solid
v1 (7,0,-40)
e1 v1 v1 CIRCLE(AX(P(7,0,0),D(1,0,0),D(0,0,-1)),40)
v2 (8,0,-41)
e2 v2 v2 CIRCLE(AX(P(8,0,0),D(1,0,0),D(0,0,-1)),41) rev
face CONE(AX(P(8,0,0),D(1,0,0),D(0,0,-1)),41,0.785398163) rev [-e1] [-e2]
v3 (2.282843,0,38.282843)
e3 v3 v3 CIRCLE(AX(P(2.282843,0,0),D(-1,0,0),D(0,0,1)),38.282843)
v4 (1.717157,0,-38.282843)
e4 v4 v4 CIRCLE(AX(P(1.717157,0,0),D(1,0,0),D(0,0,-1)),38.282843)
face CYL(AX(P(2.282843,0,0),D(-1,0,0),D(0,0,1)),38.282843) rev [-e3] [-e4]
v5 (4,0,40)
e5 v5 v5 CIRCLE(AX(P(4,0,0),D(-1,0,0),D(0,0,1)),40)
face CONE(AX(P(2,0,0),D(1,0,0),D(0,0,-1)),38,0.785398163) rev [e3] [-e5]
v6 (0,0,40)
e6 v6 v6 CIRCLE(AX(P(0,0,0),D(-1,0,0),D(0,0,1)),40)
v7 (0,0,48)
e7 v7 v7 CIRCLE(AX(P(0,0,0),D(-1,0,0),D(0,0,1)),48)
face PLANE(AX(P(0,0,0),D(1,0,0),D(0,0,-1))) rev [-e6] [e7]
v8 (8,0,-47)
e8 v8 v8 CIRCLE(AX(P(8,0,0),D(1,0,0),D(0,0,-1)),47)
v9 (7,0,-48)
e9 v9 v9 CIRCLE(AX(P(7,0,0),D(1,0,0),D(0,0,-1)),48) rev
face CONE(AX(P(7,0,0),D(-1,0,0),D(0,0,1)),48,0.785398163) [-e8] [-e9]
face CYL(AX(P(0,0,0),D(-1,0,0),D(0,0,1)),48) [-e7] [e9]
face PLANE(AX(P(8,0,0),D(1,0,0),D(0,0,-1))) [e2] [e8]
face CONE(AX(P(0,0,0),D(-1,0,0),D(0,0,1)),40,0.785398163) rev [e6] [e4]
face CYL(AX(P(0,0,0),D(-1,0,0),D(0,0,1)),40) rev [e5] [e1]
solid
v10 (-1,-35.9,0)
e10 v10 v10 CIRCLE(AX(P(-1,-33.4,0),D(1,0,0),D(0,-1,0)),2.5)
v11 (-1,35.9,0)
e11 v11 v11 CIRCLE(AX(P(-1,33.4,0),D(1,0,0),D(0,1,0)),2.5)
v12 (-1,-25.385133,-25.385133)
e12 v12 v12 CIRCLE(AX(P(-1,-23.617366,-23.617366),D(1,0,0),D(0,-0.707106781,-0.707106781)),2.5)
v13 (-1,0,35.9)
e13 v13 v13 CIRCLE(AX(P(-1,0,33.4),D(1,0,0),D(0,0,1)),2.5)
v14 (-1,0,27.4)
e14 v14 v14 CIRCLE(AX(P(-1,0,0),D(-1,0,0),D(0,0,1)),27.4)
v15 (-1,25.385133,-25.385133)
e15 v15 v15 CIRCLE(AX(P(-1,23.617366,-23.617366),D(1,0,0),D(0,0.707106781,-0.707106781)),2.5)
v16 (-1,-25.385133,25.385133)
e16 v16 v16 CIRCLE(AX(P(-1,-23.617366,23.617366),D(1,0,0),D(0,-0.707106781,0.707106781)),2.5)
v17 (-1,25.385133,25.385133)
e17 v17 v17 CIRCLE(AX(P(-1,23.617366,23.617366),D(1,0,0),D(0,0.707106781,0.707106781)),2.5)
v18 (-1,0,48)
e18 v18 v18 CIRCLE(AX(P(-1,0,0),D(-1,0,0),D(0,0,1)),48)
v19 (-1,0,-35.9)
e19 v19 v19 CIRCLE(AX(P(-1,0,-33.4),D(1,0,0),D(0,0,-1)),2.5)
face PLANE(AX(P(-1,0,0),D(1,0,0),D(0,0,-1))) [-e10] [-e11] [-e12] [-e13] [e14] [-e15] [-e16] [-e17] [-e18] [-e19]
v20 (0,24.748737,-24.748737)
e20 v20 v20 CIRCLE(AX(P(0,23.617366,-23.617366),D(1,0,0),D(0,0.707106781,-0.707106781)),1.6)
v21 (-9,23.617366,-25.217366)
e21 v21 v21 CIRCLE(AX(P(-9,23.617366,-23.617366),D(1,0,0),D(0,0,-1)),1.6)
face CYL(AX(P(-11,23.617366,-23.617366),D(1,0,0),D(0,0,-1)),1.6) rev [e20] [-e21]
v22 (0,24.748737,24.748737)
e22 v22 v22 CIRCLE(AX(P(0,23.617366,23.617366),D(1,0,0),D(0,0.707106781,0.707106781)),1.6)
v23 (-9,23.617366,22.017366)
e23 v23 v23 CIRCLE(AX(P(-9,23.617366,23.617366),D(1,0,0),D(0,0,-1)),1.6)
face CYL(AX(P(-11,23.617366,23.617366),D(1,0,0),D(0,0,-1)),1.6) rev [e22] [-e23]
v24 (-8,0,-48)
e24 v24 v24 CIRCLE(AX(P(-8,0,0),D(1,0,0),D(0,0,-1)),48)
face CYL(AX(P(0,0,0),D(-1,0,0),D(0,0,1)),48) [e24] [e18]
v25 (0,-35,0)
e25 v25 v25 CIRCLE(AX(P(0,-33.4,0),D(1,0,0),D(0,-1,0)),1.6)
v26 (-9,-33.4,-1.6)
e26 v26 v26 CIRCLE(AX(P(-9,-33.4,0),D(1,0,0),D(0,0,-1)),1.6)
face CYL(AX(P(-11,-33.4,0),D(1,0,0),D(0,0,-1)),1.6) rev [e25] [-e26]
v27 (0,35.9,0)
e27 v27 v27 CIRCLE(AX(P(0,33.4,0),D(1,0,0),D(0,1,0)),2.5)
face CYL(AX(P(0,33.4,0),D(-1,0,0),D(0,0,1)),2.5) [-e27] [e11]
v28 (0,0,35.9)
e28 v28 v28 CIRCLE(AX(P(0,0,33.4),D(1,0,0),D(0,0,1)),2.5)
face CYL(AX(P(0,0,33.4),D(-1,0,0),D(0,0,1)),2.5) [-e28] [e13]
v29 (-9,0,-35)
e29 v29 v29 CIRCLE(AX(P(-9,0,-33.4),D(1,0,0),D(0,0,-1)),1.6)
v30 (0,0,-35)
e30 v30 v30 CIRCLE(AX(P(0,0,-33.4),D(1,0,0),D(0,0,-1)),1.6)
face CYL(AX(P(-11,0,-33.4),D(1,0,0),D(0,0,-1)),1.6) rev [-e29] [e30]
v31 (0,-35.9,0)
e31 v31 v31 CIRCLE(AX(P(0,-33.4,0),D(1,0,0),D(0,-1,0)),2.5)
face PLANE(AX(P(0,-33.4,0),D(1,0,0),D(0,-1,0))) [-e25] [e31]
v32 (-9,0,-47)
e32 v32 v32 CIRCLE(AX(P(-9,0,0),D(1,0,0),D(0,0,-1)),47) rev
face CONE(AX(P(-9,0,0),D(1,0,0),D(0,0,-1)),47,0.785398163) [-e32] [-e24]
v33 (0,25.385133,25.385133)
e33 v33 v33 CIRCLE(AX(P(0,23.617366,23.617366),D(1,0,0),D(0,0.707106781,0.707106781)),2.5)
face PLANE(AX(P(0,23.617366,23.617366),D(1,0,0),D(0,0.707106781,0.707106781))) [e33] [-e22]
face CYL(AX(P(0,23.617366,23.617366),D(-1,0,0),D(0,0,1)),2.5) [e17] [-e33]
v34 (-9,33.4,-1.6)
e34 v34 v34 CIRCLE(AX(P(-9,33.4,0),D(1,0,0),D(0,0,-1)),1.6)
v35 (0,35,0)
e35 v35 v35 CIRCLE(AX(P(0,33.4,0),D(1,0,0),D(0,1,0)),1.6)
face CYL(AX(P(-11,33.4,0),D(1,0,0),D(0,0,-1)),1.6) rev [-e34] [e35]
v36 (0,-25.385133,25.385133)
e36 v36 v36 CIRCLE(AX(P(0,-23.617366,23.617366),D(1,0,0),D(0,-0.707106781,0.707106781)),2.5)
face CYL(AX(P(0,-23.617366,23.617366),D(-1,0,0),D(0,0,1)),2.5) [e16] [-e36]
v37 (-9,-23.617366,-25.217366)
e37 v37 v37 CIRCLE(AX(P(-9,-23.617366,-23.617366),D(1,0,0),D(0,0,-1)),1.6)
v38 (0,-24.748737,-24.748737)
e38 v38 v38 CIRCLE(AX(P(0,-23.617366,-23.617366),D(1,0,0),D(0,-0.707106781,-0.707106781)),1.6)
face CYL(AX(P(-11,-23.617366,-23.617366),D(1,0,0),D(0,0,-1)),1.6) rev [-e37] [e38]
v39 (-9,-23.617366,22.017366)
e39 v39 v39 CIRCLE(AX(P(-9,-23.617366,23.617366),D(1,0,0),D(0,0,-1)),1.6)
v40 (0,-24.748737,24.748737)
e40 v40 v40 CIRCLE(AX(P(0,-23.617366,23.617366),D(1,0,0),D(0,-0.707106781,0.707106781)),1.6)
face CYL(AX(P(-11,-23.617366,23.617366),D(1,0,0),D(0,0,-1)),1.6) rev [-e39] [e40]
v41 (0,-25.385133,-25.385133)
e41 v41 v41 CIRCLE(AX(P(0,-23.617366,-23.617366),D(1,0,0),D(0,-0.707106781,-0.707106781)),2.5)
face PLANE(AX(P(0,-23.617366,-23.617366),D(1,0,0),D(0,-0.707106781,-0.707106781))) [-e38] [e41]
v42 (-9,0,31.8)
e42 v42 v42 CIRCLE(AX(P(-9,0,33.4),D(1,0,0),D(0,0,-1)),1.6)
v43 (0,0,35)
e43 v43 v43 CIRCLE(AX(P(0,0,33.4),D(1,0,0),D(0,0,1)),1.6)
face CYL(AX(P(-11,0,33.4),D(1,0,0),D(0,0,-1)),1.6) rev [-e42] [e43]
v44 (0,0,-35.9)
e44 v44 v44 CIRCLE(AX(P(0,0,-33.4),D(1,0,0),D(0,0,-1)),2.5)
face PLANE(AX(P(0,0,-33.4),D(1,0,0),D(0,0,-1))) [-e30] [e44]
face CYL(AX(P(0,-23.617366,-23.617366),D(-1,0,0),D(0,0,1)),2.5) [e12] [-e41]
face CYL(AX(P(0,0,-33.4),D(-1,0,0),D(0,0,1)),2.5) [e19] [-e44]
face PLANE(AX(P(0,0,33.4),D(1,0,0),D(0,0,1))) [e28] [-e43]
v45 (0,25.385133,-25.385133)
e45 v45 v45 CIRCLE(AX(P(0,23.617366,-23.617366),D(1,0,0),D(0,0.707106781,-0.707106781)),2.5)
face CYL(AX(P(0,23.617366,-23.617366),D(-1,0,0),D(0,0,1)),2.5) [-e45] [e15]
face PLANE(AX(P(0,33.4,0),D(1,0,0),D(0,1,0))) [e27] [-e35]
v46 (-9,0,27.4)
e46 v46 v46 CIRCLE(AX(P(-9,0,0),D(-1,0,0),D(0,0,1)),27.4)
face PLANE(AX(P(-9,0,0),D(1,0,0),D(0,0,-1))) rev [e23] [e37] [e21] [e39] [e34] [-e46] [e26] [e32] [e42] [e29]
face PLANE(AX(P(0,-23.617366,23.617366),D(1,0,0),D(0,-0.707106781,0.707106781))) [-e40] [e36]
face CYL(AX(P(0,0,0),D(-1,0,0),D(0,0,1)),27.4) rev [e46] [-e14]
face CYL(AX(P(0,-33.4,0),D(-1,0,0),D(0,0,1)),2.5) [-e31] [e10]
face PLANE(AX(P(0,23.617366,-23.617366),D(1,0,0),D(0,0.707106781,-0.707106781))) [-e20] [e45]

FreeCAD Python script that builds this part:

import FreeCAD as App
import Part
import Sketcher
from FreeCAD import Vector


def edges_at(feature, points):
    """Names of the edges that pass closest to the given points."""
    edges = feature.Shape.Edges
    near = lambda p: min(range(len(edges)), key=lambda i: edges[i].distToShape(Part.Vertex(*p))[0])
    return sorted({f"Edge{near(p) + 1}" for p in points})


def add_polygon(sketch, points):
    """Adds a closed chain of lines whose ends are joined by coincident constraints."""
    first, n = sketch.GeometryCount, len(points)
    for a, b in zip(points, points[1:] + points[:1]):
        sketch.addGeometry(Part.LineSegment(App.Vector(*a, 0), App.Vector(*b, 0)), False)
    for i in range(n):
        sketch.addConstraint(Sketcher.Constraint("Coincident", first + i, 2, first + (i + 1) % n, 1))

doc = App.newDocument("Part")
body = doc.addObject("PartDesign::Body", "Body")

# Sketch on XZ plane
sketch1 = body.newObject("Sketcher::SketchObject", "Sketch")
sketch1.AttachmentSupport = (doc.getObject("XZ_Plane"), [""])
sketch1.MapMode = "FlatFace"
add_polygon(sketch1, [(2, -38), (4, -40), (8, -40), (8, -48), (0, -48), (0, -40)])  # lines 0-5
sketch1.addConstraint([
    Sketcher.Constraint("Horizontal", 1),
    Sketcher.Constraint("Vertical", 2),
    Sketcher.Constraint("Horizontal", 3),
    Sketcher.Constraint("Vertical", 4),
    Sketcher.Constraint("PointOnObject", 3, 2, -2),
    Sketcher.Constraint("Perpendicular", 0, 5),
    Sketcher.Constraint("Horizontal", 1, 2, 4, 2),
    Sketcher.Constraint("Equal", 3, 2),
    Sketcher.Constraint("Equal", 0, 5),
    Sketcher.Constraint("DistanceX", 1, 1, 1, 2, 4.0),
    Sketcher.Constraint("DistanceX", 3, 2, 3, 1, 8.0),
    Sketcher.Constraint("DistanceY", 0, 2, -1, 1, 40.0),
])
revolution = body.newObject("PartDesign::Revolution", "Revolution")
revolution.Profile = sketch1
revolution.ReferenceAxis = (sketch1, ["H_Axis"])
revolution.Angle = 360
doc.recompute()

chamfer = body.newObject("PartDesign::Chamfer", "Chamfer")
chamfer.Base = (revolution, edges_at(revolution, [(2, 0, 38)]))
chamfer.Size = 0.4
doc.recompute()

chamfer2 = body.newObject("PartDesign::Chamfer", "Chamfer001")
chamfer2.Base = (chamfer, edges_at(chamfer, [(8, 0, 40), (8, 0, 48)]))
chamfer2.Size = 1
body2 = doc.addObject("PartDesign::Body", "Body001")

# Sketch on XZ plane
sketch2 = body2.newObject("Sketcher::SketchObject", "Sketch001")
sketch2.AttachmentSupport = (doc.getObject("XZ_Plane001"), [""])
sketch2.MapMode = "FlatFace"
add_polygon(sketch2, [(-9, -48), (-9, -27), (-1, -27), (-1, -48)])  # lines 0-3
sketch2.addConstraint([
    Sketcher.Constraint("Vertical", 0),
    Sketcher.Constraint("Horizontal", 1),
    Sketcher.Constraint("Vertical", 2),
    Sketcher.Constraint("Horizontal", 3),
    Sketcher.Constraint("DistanceX", 1, 1, 1, 2, 8.0),
    Sketcher.Constraint("DistanceY", 0, 1, 0, 2, 20.6),
    Sketcher.Constraint("DistanceX", 0, 2, -1, 1, 9.0),
    Sketcher.Constraint("DistanceY", 2, 2, -1, 1, 48.0),
])
revolution2 = body2.newObject("PartDesign::Revolution", "Revolution001")
revolution2.Profile = sketch2
revolution2.ReferenceAxis = (sketch2, ["H_Axis"])
revolution2.Angle = 360

# Sketch on YZ plane
sketch3 = body2.newObject("Sketcher::SketchObject", "Sketch002")
sketch3.AttachmentSupport = (doc.getObject("YZ_Plane001"), [""])
sketch3.MapMode = "FlatFace"
sketch3.AttachmentOffset = App.Placement(Vector(0, 0, -1), App.Rotation())
sketch3.addGeometry(Part.Circle(Vector(0, -33.4, 0), Vector(0, 0, 1), 1.6), False)
sketch3.addConstraint([
    Sketcher.Constraint("PointOnObject", 0, 3, -2),
    Sketcher.Constraint("Diameter", 0, 3.2),
    Sketcher.Constraint("DistanceY", 0, 3, -1, 1, 33.4),
])
pocket1 = body2.newObject("PartDesign::Pocket", "Pocket")
pocket1.Profile = sketch3
pocket1.Length = 10

# Sketch on YZ plane
sketch4 = body2.newObject("Sketcher::SketchObject", "Sketch003")
sketch4.AttachmentSupport = (doc.getObject("YZ_Plane001"), [""])
sketch4.MapMode = "FlatFace"
sketch4.AttachmentOffset = App.Placement(Vector(0, 0, -1), App.Rotation())
sketch4.addGeometry([
    Part.Circle(Vector(0, -33.4, 0), Vector(0, 0, 1), 2.5),
    Part.Circle(Vector(0, -33.4, 0), Vector(0, 0, 1), 1.6),
], False)
sketch4.addConstraint([
    Sketcher.Constraint("Coincident", 1, 3, 0, 3),
    Sketcher.Constraint("PointOnObject", 0, 3, -2),
    Sketcher.Constraint("Diameter", 0, 5.0),
    Sketcher.Constraint("Diameter", 1, 3.2),
    Sketcher.Constraint("DistanceY", 0, 3, -1, 1, 33.4),
])
pad1 = body2.newObject("PartDesign::Pad", "Pad")
pad1.Profile = sketch4
pad1.Length = 1
doc.recompute()

polarpattern = body2.newObject("PartDesign::PolarPattern", "PolarPattern")
polarpattern.Originals = [pocket1, pad1]
polarpattern.Axis = (doc.getObject("X_Axis001"), [""])
polarpattern.Angle = 360
polarpattern.Occurrences = 8
body2.Tip = polarpattern
doc.recompute()

chamfer3 = body2.newObject("PartDesign::Chamfer", "Chamfer002")
chamfer3.Base = (polarpattern, edges_at(polarpattern, [(-9, 0, 48)]))
chamfer3.Size = 1

doc.recompute()
